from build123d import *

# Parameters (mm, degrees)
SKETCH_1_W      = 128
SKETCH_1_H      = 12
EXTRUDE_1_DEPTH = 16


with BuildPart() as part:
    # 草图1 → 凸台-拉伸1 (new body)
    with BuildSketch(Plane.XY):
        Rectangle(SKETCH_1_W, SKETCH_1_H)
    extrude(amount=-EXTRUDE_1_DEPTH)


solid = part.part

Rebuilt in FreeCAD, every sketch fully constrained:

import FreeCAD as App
import Part
import Sketcher
from FreeCAD import Vector
Q = App.Units.Quantity


def add_polygon(sketch, points):
    """Adds a closed chain of lines whose ends are joined by coincident constraints."""
    first, n = sketch.GeometryCount, len(points)
    for a, b in zip(points, points[1:] + points[:1]):
        sketch.addGeometry(Part.LineSegment(App.Vector(*a, 0), App.Vector(*b, 0)), False)
    for i in range(n):
        sketch.addConstraint(Sketcher.Constraint("Coincident", first + i, 2, first + (i + 1) % n, 1))

doc = App.newDocument("Part")
body = doc.addObject("PartDesign::Body", "Body")

# Sketch on XY plane
sketch1 = body.newObject("Sketcher::SketchObject", "Sketch")
sketch1.AttachmentSupport = (doc.getObject("XY_Plane"), [""])
sketch1.MapMode = "FlatFace"
add_polygon(sketch1, [(-64, 6), (-64, -6), (64, -6), (64, 6)])  # lines 0-3
sketch1.addConstraint([
    Sketcher.Constraint("Vertical", 0),
    Sketcher.Constraint("Horizontal", 1),
    Sketcher.Constraint("Vertical", 2),
    Sketcher.Constraint("Horizontal", 3),
    Sketcher.Constraint("Symmetric", 0, 2, 2, 2, -1, 1),
    Sketcher.Constraint("DistanceX", 1, 1, 1, 2, Q("128 mm")),
    Sketcher.Constraint("DistanceY", 0, 2, 0, 1, Q("12 mm")),
])
pad1 = body.newObject("PartDesign::Pad", "Pad")
pad1.Profile = sketch1
pad1.Length = 16
pad1.Reversed = True

doc.recompute()
